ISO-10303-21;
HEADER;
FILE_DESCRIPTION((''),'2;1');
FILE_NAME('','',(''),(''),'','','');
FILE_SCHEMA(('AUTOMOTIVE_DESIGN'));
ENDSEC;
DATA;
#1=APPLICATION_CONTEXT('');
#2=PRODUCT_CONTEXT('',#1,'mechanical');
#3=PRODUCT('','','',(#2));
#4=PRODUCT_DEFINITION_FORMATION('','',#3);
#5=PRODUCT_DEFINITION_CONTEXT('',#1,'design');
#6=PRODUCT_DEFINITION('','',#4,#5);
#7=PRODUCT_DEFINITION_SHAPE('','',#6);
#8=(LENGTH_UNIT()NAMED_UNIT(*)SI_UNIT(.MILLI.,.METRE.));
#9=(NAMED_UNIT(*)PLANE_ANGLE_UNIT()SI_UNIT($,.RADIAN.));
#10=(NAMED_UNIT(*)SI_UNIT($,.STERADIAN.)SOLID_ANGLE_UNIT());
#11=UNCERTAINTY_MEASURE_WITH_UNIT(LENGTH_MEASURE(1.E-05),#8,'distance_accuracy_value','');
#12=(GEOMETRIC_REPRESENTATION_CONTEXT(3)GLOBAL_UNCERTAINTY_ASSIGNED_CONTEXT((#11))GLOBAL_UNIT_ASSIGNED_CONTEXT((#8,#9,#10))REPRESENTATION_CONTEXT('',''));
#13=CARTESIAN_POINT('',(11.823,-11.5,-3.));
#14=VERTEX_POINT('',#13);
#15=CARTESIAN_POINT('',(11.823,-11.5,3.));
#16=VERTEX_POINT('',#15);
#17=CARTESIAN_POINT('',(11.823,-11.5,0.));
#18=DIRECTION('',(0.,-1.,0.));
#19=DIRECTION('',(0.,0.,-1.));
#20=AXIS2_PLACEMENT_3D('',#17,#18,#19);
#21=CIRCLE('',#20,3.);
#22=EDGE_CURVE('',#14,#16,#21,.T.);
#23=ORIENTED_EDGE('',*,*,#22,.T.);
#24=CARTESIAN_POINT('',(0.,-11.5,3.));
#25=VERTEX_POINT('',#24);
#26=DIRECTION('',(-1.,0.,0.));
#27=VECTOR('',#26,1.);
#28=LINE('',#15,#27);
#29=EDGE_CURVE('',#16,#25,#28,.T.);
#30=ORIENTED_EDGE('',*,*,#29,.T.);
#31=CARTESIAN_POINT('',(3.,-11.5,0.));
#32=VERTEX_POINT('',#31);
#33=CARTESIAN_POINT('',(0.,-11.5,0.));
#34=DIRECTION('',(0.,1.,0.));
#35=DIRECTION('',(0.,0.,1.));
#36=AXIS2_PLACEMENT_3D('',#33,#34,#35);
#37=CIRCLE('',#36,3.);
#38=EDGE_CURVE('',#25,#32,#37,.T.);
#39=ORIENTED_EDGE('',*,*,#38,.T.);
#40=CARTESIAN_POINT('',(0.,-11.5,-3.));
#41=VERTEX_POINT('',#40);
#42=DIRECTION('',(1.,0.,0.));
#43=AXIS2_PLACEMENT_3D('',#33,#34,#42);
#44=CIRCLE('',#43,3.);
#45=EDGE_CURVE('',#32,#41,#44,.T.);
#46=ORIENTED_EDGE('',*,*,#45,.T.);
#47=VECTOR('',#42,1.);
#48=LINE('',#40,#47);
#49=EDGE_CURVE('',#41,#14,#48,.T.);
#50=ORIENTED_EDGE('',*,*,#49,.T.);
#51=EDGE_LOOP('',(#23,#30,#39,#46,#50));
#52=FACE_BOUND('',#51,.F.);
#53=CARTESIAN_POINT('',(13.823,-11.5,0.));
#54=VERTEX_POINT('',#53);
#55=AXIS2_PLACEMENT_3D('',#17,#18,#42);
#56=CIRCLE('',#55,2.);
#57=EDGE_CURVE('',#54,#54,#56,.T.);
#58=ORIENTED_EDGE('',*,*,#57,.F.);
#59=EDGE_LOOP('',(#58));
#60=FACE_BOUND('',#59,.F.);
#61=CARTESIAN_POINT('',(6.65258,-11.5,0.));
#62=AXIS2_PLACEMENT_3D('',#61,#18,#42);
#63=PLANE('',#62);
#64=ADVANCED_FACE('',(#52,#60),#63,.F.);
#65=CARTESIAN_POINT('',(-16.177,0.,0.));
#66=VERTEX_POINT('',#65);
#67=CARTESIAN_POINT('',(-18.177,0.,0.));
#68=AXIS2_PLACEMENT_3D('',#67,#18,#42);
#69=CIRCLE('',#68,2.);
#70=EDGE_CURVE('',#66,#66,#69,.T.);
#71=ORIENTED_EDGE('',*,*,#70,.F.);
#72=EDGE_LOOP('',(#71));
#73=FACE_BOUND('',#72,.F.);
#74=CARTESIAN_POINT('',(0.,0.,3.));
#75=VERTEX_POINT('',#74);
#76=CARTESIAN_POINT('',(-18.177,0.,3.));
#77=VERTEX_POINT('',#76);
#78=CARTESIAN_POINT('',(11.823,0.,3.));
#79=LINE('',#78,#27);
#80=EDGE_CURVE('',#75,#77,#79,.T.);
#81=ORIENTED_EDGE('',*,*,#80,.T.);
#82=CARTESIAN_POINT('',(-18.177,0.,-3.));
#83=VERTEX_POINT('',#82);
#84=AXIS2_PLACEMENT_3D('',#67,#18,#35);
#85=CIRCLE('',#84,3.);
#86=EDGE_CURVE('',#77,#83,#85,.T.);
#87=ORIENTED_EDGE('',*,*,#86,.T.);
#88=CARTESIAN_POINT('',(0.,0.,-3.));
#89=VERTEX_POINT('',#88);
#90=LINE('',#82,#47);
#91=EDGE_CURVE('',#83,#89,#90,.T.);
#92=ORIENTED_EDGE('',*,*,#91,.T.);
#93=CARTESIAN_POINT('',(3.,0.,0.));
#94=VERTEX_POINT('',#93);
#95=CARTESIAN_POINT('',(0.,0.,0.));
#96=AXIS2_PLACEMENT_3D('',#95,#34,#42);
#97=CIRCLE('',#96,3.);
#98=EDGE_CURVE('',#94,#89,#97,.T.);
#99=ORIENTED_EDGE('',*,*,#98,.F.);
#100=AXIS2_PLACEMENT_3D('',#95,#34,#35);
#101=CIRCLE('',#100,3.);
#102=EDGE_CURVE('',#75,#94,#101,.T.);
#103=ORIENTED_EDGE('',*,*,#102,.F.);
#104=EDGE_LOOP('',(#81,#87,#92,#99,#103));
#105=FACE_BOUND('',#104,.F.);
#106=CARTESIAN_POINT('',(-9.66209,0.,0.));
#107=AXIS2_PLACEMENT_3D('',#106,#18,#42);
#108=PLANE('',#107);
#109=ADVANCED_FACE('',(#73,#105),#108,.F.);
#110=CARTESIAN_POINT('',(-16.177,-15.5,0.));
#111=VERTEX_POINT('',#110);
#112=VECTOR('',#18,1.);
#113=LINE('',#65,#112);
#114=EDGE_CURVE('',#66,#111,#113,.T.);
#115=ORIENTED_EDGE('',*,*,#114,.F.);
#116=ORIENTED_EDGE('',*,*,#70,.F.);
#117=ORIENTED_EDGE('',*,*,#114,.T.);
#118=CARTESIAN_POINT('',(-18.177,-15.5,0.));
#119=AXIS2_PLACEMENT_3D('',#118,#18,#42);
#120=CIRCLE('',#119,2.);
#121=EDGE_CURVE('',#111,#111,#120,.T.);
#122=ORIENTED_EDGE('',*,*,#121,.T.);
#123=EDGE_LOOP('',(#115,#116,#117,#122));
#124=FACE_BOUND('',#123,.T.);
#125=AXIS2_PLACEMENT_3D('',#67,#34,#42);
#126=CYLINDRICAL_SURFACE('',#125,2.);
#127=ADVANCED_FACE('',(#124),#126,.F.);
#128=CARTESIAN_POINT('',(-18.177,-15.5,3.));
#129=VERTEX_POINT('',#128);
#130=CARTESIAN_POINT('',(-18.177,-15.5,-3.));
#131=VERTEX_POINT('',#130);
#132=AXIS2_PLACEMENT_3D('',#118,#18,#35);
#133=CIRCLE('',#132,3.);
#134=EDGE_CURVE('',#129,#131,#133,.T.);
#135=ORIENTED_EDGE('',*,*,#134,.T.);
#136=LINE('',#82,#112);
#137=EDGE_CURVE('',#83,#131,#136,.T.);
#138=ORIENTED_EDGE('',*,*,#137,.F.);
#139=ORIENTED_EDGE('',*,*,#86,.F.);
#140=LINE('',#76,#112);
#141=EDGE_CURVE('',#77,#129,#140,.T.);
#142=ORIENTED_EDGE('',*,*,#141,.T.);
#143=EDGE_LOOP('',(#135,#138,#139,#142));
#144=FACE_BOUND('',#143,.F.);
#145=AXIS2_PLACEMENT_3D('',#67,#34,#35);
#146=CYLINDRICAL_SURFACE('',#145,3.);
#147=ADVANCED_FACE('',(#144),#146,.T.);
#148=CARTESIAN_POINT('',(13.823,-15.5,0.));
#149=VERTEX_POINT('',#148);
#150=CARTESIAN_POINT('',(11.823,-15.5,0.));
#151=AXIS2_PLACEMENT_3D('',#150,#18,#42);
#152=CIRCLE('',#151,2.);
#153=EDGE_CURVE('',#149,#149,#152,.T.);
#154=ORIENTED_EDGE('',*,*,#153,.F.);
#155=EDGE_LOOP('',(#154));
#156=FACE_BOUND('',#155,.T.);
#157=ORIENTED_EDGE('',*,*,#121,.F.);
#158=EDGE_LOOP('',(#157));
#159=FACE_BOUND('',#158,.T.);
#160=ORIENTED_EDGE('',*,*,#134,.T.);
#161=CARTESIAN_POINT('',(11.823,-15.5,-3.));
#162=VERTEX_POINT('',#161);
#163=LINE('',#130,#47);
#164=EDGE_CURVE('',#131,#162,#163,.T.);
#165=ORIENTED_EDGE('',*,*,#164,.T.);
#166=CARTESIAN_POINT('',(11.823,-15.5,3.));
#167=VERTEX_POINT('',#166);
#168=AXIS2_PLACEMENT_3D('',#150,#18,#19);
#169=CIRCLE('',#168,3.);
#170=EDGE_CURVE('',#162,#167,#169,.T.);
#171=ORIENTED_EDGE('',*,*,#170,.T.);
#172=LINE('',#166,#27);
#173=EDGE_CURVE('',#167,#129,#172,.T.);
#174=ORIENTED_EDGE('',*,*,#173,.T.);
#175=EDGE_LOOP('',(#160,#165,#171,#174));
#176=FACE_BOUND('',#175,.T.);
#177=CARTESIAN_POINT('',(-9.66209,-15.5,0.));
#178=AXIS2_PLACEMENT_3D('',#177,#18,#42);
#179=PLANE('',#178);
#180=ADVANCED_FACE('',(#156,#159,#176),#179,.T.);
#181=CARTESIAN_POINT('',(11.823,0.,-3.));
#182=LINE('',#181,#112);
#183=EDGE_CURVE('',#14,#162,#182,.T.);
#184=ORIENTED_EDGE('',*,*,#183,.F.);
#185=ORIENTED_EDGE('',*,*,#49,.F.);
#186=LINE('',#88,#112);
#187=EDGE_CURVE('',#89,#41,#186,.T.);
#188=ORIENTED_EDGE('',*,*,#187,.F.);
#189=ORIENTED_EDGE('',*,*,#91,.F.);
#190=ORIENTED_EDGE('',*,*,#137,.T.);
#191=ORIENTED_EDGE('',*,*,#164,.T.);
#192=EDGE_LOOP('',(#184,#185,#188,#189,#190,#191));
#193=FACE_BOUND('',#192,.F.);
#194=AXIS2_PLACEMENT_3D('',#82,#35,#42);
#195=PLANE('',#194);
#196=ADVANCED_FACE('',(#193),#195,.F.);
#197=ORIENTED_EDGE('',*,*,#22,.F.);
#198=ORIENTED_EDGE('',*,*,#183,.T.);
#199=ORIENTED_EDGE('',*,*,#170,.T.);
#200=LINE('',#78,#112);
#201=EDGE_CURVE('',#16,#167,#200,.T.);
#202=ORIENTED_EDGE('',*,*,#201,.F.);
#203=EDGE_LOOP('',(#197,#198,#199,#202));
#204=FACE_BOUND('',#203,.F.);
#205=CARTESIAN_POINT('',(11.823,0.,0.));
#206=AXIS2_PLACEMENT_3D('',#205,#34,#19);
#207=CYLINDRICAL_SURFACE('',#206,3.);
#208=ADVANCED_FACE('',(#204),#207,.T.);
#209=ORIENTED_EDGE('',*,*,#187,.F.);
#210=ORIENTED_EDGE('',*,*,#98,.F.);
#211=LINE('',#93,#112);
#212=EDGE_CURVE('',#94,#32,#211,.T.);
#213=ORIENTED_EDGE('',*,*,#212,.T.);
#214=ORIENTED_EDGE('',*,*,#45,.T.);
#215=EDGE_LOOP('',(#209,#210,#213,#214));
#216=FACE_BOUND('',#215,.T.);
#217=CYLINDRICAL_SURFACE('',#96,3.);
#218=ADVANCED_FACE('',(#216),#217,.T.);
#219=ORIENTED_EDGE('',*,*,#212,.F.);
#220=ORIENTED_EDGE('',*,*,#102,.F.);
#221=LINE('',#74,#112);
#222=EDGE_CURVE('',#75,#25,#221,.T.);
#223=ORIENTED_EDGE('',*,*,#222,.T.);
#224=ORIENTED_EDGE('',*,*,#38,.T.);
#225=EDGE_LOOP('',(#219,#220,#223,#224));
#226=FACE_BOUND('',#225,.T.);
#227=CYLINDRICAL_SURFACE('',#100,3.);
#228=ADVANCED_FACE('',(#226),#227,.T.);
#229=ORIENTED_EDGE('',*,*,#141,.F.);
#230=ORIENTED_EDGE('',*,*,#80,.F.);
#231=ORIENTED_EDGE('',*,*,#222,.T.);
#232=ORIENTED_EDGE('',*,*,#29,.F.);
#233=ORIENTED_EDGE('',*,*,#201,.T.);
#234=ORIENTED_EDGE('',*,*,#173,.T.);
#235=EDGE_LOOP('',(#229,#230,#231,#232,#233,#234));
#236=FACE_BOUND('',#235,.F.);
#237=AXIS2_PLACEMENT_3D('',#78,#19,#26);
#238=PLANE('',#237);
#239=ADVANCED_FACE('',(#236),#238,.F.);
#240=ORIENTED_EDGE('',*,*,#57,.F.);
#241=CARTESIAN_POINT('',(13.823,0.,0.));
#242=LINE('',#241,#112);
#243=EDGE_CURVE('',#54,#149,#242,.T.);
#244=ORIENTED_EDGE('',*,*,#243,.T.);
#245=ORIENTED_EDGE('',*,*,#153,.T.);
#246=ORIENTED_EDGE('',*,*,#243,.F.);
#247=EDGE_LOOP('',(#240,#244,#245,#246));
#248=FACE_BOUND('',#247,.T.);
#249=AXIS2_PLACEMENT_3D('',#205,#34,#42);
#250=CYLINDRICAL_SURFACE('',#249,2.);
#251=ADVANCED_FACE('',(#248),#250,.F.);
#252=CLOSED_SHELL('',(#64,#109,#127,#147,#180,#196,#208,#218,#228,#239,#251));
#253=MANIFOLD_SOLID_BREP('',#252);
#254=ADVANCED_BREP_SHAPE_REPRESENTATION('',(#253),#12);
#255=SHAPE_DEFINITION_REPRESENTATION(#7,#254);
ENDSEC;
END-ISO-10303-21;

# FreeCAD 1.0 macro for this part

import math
import FreeCAD as App
import Part
import Sketcher
from FreeCAD import Vector

doc = App.newDocument("Part")
params = doc.addObject("Spreadsheet::Sheet", "Params")
for row, (alias, value) in enumerate([
    ("sketch1_diameter", "4 mm"),
    ("sketch1_radius", "3 mm"),
    ("sketch1_width", "30 mm"),
    ("pad1_length", "15.5 mm"),
    ("sketch2_diameter", "4 mm"),
    ("sketch2_radius", "3 mm"),
    ("pocket1_length", "11.5 mm"),
], start=1):
    params.set(f"A{row}", alias)
    params.set(f"B{row}", "=" + value)
    params.setAlias(f"B{row}", alias)

body = doc.addObject("PartDesign::Body", "Body")

# Sketch on XZ plane
sketch1 = doc.addObject("Sketcher::SketchObject", "Sketch")
body.addObject(sketch1)
sketch1.AttachmentSupport = (doc.XZ_Plane, [""])
sketch1.MapMode = "FlatFace"
sketch1.addGeometry(Part.ArcOfCircle(Part.Circle(Vector(-18.2, 0, 0), Vector(0, 0, 1), 3), math.radians(90), math.radians(270)), False)
sketch1.addGeometry(Part.LineSegment(Vector(-18.2, -3, 0), Vector(11.8, -3, 0)), False)
sketch1.addGeometry(Part.ArcOfCircle(Part.Circle(Vector(11.8, 0, 0), Vector(0, 0, 1), 3), math.radians(-90), math.radians(90)), False)
sketch1.addGeometry(Part.LineSegment(Vector(11.8, 3, 0), Vector(-18.2, 3, 0)), False)
sketch1.addGeometry(Part.Circle(Vector(-18.2, 0, 0), Vector(0, 0, 1), 2), False)
sketch1.addGeometry(Part.Circle(Vector(11.8, 0, 0), Vector(0, 0, 1), 2), False)
sketch1.addConstraint(Sketcher.Constraint("Tangent", 0, 2, 1, 1))
sketch1.addConstraint(Sketcher.Constraint("Tangent", 1, 2, 2, 1))
sketch1.addConstraint(Sketcher.Constraint("Tangent", 2, 2, 3, 1))
sketch1.addConstraint(Sketcher.Constraint("Tangent", 3, 2, 0, 1))
sketch1.addConstraint(Sketcher.Constraint("Horizontal", 1))
sketch1.addConstraint(Sketcher.Constraint("Horizontal", 3))
sketch1.addConstraint(Sketcher.Constraint("Coincident", 4, 3, 0, 3))
sketch1.addConstraint(Sketcher.Constraint("Coincident", 5, 3, 2, 3))
sketch1.addConstraint(Sketcher.Constraint("Equal", 4, 5))
sketch1.addConstraint(Sketcher.Constraint("PointOnObject", 0, 3, -1))
sketch1.addConstraint(Sketcher.Constraint("Diameter", 4, 4.0))
sketch1.addConstraint(Sketcher.Constraint("Radius", 0, 3.0))
sketch1.addConstraint(Sketcher.Constraint("DistanceX", 1, 1, 1, 2, 30.0))
sketch1.addConstraint(Sketcher.Constraint("DistanceX", 0, 3, -1, 1, 18.177))
sketch1.setExpression("Constraints[10]", "Params.sketch1_diameter")
sketch1.setExpression("Constraints[11]", "Params.sketch1_radius")
sketch1.setExpression("Constraints[12]", "Params.sketch1_width")
pad1 = doc.addObject("PartDesign::Pad", "Pad")
body.addObject(pad1)
pad1.Profile = sketch1
pad1.setExpression("Length", "Params.pad1_length")

# Sketch on XZ plane
sketch2 = doc.addObject("Sketcher::SketchObject", "Sketch001")
body.addObject(sketch2)
sketch2.AttachmentSupport = (doc.XZ_Plane, [""])
sketch2.MapMode = "FlatFace"
sketch2.addGeometry(Part.LineSegment(Vector(11.8, 3, 0), Vector(0, 3, 0)), False)
sketch2.addGeometry(Part.ArcOfCircle(Part.Circle(Vector(0, 0, 0), Vector(0, 0, 1), 3), math.radians(0), math.radians(90)), False)
sketch2.addGeometry(Part.ArcOfCircle(Part.Circle(Vector(0, 0, 0), Vector(0, 0, 1), 3), math.radians(-90), math.radians(0)), False)
sketch2.addGeometry(Part.LineSegment(Vector(0, -3, 0), Vector(11.8, -3, 0)), False)
sketch2.addGeometry(Part.ArcOfCircle(Part.Circle(Vector(11.8, 0, 0), Vector(0, 0, 1), 3), math.radians(-90), math.radians(90)), False)
sketch2.addGeometry(Part.Circle(Vector(11.8, 0, 0), Vector(0, 0, 1), 2), False)
sketch2.addConstraint(Sketcher.Constraint("Tangent", 0, 2, 1, 2))
sketch2.addConstraint(Sketcher.Constraint("Tangent", 1, 1, 2, 2))
sketch2.addConstraint(Sketcher.Constraint("Tangent", 2, 1, 3, 1))
sketch2.addConstraint(Sketcher.Constraint("Tangent", 3, 2, 4, 1))
sketch2.addConstraint(Sketcher.Constraint("Tangent", 4, 2, 0, 1))
sketch2.addConstraint(Sketcher.Constraint("Horizontal", 0))
sketch2.addConstraint(Sketcher.Constraint("Horizontal", 3))
sketch2.addConstraint(Sketcher.Constraint("Coincident", 1, 3, -1, 1))
sketch2.addConstraint(Sketcher.Constraint("Coincident", 5, 3, 4, 3))
sketch2.addConstraint(Sketcher.Constraint("Equal", 1, 2))
sketch2.addConstraint(Sketcher.Constraint("PointOnObject", 1, 1, -1))
sketch2.addConstraint(Sketcher.Constraint("Diameter", 5, 4.0))
sketch2.addConstraint(Sketcher.Constraint("Radius", 1, 3.0))
sketch2.addConstraint(Sketcher.Constraint("DistanceX", 0, 2, 0, 1, 11.823))
sketch2.setExpression("Constraints[11]", "Params.sketch2_diameter")
sketch2.setExpression("Constraints[12]", "Params.sketch2_radius")
pocket1 = doc.addObject("PartDesign::Pocket", "Pocket")
body.addObject(pocket1)
pocket1.Profile = sketch2
pocket1.setExpression("Length", "Params.pocket1_length")
pocket1.Reversed = True

doc.recompute()
